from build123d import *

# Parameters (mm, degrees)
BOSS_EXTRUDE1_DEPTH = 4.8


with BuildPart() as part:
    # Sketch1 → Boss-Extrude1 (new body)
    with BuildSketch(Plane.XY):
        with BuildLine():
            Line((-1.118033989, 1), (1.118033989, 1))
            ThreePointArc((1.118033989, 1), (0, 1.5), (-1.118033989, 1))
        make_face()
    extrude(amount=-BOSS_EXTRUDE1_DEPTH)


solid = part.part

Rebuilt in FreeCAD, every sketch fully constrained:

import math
import FreeCAD as App
import Part
import Sketcher

V = App.Vector
Q = App.Units.Quantity

doc = App.newDocument("Part")
params = doc.addObject("Spreadsheet::Sheet", "Params")
for row, (alias, value) in enumerate([
    ("sketch1_radius", "1.5 mm"),
    ("pad1_length", "4.8 mm"),
], start=1):
    params.set(f"A{row}", alias)
    params.set(f"B{row}", "=" + value)
    params.setAlias(f"B{row}", alias)

body = doc.addObject("PartDesign::Body", "Body")

sketch1 = body.newObject("Sketcher::SketchObject", "Sketch")
sketch1.AttachmentSupport = (doc.getObject("XY_Plane"), [""])
sketch1.MapMode = "FlatFace"
sketch1.addGeometry([
    Part.LineSegment(V(-1.1, 1, 0), V(1.1, 1, 0)),
    Part.ArcOfCircle(Part.Circle(V(0, 0, 0), V(0, 0, 1), 1.5), math.radians(42), math.radians(138)),
], False)
sketch1.addConstraint([
    Sketcher.Constraint("Coincident", 0, 1, 1, 2),
    Sketcher.Constraint("Coincident", 1, 1, 0, 2),
    Sketcher.Constraint("Horizontal", 0),
    Sketcher.Constraint("Coincident", 1, 3, -1, 1),
    Sketcher.Constraint("Radius", 1, Q("1.5 mm")),
    Sketcher.Constraint("DistanceY", -1, 1, 0, 1, Q("1 mm")),
])
sketch1.setExpression("Constraints[4]", "Params.sketch1_radius")
pad1 = body.newObject("PartDesign::Pad", "Pad")
pad1.Profile = sketch1
pad1.setExpression("Length", "Params.pad1_length")
pad1.Reversed = True

doc.recompute()
